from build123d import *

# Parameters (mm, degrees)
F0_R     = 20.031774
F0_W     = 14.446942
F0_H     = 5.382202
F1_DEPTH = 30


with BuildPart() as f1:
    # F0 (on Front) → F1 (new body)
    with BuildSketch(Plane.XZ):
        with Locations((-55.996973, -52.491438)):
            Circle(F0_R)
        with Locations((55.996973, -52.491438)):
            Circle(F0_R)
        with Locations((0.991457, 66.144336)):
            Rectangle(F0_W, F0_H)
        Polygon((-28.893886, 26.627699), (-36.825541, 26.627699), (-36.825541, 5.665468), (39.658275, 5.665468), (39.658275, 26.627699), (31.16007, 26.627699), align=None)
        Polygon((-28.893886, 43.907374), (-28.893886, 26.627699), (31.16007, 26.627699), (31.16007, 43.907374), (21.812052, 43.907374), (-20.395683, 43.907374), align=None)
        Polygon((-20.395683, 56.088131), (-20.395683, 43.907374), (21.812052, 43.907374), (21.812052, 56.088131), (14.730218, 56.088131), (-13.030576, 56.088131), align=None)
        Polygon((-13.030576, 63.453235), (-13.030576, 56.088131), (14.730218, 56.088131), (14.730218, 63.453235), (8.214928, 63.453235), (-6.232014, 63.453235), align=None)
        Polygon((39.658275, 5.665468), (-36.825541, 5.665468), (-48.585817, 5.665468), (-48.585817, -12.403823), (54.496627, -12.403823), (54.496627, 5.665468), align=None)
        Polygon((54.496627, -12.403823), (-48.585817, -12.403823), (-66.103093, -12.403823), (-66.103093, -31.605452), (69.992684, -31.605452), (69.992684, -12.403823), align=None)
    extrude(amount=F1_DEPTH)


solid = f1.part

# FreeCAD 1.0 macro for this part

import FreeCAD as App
import Part
import Sketcher

V = App.Vector

doc = App.newDocument("Part")
params = doc.addObject("Spreadsheet::Sheet", "Params")
for row, (alias, value) in enumerate([
    ("pad1_length", "30 mm"),
], start=1):
    params.set(f"A{row}", alias)
    params.set(f"B{row}", "=" + value)
    params.setAlias(f"B{row}", alias)

body = doc.addObject("PartDesign::Body", "Body")
body.AllowCompound = True

sketch1 = body.newObject("Sketcher::SketchObject", "Sketch")
sketch1.AttachmentSupport = (doc.getObject("XZ_Plane"), [""])
sketch1.MapMode = "FlatFace"
sketch1.addGeometry([
    Part.Circle(V(-56, -52, 0), V(0, 0, 1), 20),
    Part.Circle(V(56, -52, 0), V(0, 0, 1), 20),
    Part.LineSegment(V(-6, 69, 0), V(-6, 63, 0)),
    Part.LineSegment(V(-6, 63, 0), V(-13, 63, 0)),
    Part.LineSegment(V(-13, 63, 0), V(-13, 56, 0)),
    Part.LineSegment(V(-13, 56, 0), V(-20, 56, 0)),
    Part.LineSegment(V(-20, 56, 0), V(-20, 44, 0)),
    Part.LineSegment(V(-20, 44, 0), V(-29, 44, 0)),
    Part.LineSegment(V(-29, 44, 0), V(-29, 27, 0)),
    Part.LineSegment(V(-29, 27, 0), V(-37, 27, 0)),
    Part.LineSegment(V(-37, 27, 0), V(-37, 6, 0)),
    Part.LineSegment(V(-37, 6, 0), V(-49, 6, 0)),
    Part.LineSegment(V(-49, 6, 0), V(-49, -12, 0)),
    Part.LineSegment(V(-49, -12, 0), V(-66, -12, 0)),
    Part.LineSegment(V(-66, -12, 0), V(-66, -32, 0)),
    Part.LineSegment(V(-66, -32, 0), V(70, -32, 0)),
    Part.LineSegment(V(70, -32, 0), V(70, -12, 0)),
    Part.LineSegment(V(70, -12, 0), V(54, -12, 0)),
    Part.LineSegment(V(54, -12, 0), V(54, 6, 0)),
    Part.LineSegment(V(54, 6, 0), V(40, 6, 0)),
    Part.LineSegment(V(40, 6, 0), V(40, 27, 0)),
    Part.LineSegment(V(40, 27, 0), V(31, 27, 0)),
    Part.LineSegment(V(31, 27, 0), V(31, 44, 0)),
    Part.LineSegment(V(31, 44, 0), V(22, 44, 0)),
    Part.LineSegment(V(22, 44, 0), V(22, 56, 0)),
    Part.LineSegment(V(22, 56, 0), V(15, 56, 0)),
    Part.LineSegment(V(15, 56, 0), V(15, 63, 0)),
    Part.LineSegment(V(15, 63, 0), V(8, 63, 0)),
    Part.LineSegment(V(8, 63, 0), V(8, 69, 0)),
    Part.LineSegment(V(8, 69, 0), V(-6, 69, 0)),
], False)
sketch1.addConstraint([
    Sketcher.Constraint("Coincident", 2, 2, 3, 1),
    Sketcher.Constraint("Coincident", 3, 2, 4, 1),
    Sketcher.Constraint("Coincident", 4, 2, 5, 1),
    Sketcher.Constraint("Coincident", 5, 2, 6, 1),
    Sketcher.Constraint("Coincident", 6, 2, 7, 1),
    Sketcher.Constraint("Coincident", 7, 2, 8, 1),
    Sketcher.Constraint("Coincident", 8, 2, 9, 1),
    Sketcher.Constraint("Coincident", 9, 2, 10, 1),
    Sketcher.Constraint("Coincident", 10, 2, 11, 1),
    Sketcher.Constraint("Coincident", 11, 2, 12, 1),
    Sketcher.Constraint("Coincident", 12, 2, 13, 1),
    Sketcher.Constraint("Coincident", 13, 2, 14, 1),
    Sketcher.Constraint("Coincident", 14, 2, 15, 1),
    Sketcher.Constraint("Coincident", 15, 2, 16, 1),
    Sketcher.Constraint("Coincident", 16, 2, 17, 1),
    Sketcher.Constraint("Coincident", 17, 2, 18, 1),
    Sketcher.Constraint("Coincident", 18, 2, 19, 1),
    Sketcher.Constraint("Coincident", 19, 2, 20, 1),
    Sketcher.Constraint("Coincident", 20, 2, 21, 1),
    Sketcher.Constraint("Coincident", 21, 2, 22, 1),
    Sketcher.Constraint("Coincident", 22, 2, 23, 1),
    Sketcher.Constraint("Coincident", 23, 2, 24, 1),
    Sketcher.Constraint("Coincident", 24, 2, 25, 1),
    Sketcher.Constraint("Coincident", 25, 2, 26, 1),
    Sketcher.Constraint("Coincident", 26, 2, 27, 1),
    Sketcher.Constraint("Coincident", 27, 2, 28, 1),
    Sketcher.Constraint("Coincident", 28, 2, 29, 1),
    Sketcher.Constraint("Coincident", 29, 2, 2, 1),
    Sketcher.Constraint("Vertical", 2),
    Sketcher.Constraint("Horizontal", 3),
    Sketcher.Constraint("Vertical", 4),
    Sketcher.Constraint("Horizontal", 5),
    Sketcher.Constraint("Vertical", 6),
    Sketcher.Constraint("Horizontal", 7),
    Sketcher.Constraint("Vertical", 8),
    Sketcher.Constraint("Horizontal", 9),
    Sketcher.Constraint("Vertical", 10),
    Sketcher.Constraint("Horizontal", 11),
    Sketcher.Constraint("Vertical", 12),
    Sketcher.Constraint("Horizontal", 13),
    Sketcher.Constraint("Vertical", 14),
    Sketcher.Constraint("Horizontal", 15),
    Sketcher.Constraint("Vertical", 16),
    Sketcher.Constraint("Horizontal", 17),
    Sketcher.Constraint("Vertical", 18),
    Sketcher.Constraint("Horizontal", 19),
    Sketcher.Constraint("Vertical", 20),
    Sketcher.Constraint("Horizontal", 21),
    Sketcher.Constraint("Vertical", 22),
    Sketcher.Constraint("Horizontal", 23),
    Sketcher.Constraint("Vertical", 24),
    Sketcher.Constraint("Horizontal", 25),
    Sketcher.Constraint("Vertical", 26),
    Sketcher.Constraint("Horizontal", 27),
    Sketcher.Constraint("Vertical", 28),
    Sketcher.Constraint("Horizontal", 29),
    Sketcher.Constraint("Equal", 0, 1),
    Sketcher.Constraint("Symmetric", 0, 3, 1, 3, -2),
    Sketcher.Constraint("Horizontal", 13, 2, 16, 2),
    Sketcher.Constraint("Horizontal", 11, 2, 18, 2),
    Sketcher.Constraint("Horizontal", 9, 2, 20, 2),
    Sketcher.Constraint("Horizontal", 7, 2, 22, 2),
    Sketcher.Constraint("Horizontal", 5, 2, 24, 2),
    Sketcher.Constraint("Horizontal", 3, 2, 26, 2),
    Sketcher.Constraint("Diameter", 0, 40.063548),
    Sketcher.Constraint("DistanceY", 2, 2, 2, 1, 5.382202),
    Sketcher.Constraint("DistanceX", 3, 2, 3, 1, 6.798562),
    Sketcher.Constraint("DistanceX", 19, 2, 19, 1, 14.838352),
    Sketcher.Constraint("DistanceX", 27, 2, 27, 1, 6.51529),
    Sketcher.Constraint("DistanceY", 10, 2, 10, 1, 20.962231),
    Sketcher.Constraint("DistanceY", 12, 2, 12, 1, 18.069291),
    Sketcher.Constraint("DistanceY", 14, 2, 14, 1, 19.201629),
    Sketcher.Constraint("DistanceY", -1, 1, 8, 2, 26.627699),
    Sketcher.Constraint("DistanceX", 12, 2, 15, 2, 118.578501),
    Sketcher.Constraint("DistanceX", 2, 2, 16, 2, 76.224698),
    Sketcher.Constraint("DistanceX", 5, 2, 5, 1, 7.365107),
    Sketcher.Constraint("DistanceX", 7, 2, 7, 1, 8.498203),
    Sketcher.Constraint("DistanceX", 9, 2, 9, 1, 7.931655),
    Sketcher.Constraint("DistanceX", 13, 2, 13, 1, 17.517276),
    Sketcher.Constraint("DistanceX", 17, 2, 17, 1, 15.496057),
    Sketcher.Constraint("DistanceX", 21, 2, 21, 1, 8.498205),
    Sketcher.Constraint("DistanceX", 23, 2, 23, 1, 9.348018),
    Sketcher.Constraint("DistanceX", 25, 2, 25, 1, 7.081834),
    Sketcher.Constraint("DistanceY", 4, 2, 4, 1, 7.365104),
    Sketcher.Constraint("DistanceY", 6, 2, 6, 1, 12.180757),
    Sketcher.Constraint("DistanceY", 8, 2, 8, 1, 17.279675),
    Sketcher.Constraint("DistanceY", 0, 3, -1, 1, 52.491438),
    Sketcher.Constraint("DistanceX", 9, 2, -1, 1, 36.825541),
    Sketcher.Constraint("DistanceX", 0, 3, 2, 2, 49.764959),
])
pad1 = body.newObject("PartDesign::Pad", "Pad")
pad1.Profile = sketch1
pad1.setExpression("Length", "Params.pad1_length")

doc.recompute()
